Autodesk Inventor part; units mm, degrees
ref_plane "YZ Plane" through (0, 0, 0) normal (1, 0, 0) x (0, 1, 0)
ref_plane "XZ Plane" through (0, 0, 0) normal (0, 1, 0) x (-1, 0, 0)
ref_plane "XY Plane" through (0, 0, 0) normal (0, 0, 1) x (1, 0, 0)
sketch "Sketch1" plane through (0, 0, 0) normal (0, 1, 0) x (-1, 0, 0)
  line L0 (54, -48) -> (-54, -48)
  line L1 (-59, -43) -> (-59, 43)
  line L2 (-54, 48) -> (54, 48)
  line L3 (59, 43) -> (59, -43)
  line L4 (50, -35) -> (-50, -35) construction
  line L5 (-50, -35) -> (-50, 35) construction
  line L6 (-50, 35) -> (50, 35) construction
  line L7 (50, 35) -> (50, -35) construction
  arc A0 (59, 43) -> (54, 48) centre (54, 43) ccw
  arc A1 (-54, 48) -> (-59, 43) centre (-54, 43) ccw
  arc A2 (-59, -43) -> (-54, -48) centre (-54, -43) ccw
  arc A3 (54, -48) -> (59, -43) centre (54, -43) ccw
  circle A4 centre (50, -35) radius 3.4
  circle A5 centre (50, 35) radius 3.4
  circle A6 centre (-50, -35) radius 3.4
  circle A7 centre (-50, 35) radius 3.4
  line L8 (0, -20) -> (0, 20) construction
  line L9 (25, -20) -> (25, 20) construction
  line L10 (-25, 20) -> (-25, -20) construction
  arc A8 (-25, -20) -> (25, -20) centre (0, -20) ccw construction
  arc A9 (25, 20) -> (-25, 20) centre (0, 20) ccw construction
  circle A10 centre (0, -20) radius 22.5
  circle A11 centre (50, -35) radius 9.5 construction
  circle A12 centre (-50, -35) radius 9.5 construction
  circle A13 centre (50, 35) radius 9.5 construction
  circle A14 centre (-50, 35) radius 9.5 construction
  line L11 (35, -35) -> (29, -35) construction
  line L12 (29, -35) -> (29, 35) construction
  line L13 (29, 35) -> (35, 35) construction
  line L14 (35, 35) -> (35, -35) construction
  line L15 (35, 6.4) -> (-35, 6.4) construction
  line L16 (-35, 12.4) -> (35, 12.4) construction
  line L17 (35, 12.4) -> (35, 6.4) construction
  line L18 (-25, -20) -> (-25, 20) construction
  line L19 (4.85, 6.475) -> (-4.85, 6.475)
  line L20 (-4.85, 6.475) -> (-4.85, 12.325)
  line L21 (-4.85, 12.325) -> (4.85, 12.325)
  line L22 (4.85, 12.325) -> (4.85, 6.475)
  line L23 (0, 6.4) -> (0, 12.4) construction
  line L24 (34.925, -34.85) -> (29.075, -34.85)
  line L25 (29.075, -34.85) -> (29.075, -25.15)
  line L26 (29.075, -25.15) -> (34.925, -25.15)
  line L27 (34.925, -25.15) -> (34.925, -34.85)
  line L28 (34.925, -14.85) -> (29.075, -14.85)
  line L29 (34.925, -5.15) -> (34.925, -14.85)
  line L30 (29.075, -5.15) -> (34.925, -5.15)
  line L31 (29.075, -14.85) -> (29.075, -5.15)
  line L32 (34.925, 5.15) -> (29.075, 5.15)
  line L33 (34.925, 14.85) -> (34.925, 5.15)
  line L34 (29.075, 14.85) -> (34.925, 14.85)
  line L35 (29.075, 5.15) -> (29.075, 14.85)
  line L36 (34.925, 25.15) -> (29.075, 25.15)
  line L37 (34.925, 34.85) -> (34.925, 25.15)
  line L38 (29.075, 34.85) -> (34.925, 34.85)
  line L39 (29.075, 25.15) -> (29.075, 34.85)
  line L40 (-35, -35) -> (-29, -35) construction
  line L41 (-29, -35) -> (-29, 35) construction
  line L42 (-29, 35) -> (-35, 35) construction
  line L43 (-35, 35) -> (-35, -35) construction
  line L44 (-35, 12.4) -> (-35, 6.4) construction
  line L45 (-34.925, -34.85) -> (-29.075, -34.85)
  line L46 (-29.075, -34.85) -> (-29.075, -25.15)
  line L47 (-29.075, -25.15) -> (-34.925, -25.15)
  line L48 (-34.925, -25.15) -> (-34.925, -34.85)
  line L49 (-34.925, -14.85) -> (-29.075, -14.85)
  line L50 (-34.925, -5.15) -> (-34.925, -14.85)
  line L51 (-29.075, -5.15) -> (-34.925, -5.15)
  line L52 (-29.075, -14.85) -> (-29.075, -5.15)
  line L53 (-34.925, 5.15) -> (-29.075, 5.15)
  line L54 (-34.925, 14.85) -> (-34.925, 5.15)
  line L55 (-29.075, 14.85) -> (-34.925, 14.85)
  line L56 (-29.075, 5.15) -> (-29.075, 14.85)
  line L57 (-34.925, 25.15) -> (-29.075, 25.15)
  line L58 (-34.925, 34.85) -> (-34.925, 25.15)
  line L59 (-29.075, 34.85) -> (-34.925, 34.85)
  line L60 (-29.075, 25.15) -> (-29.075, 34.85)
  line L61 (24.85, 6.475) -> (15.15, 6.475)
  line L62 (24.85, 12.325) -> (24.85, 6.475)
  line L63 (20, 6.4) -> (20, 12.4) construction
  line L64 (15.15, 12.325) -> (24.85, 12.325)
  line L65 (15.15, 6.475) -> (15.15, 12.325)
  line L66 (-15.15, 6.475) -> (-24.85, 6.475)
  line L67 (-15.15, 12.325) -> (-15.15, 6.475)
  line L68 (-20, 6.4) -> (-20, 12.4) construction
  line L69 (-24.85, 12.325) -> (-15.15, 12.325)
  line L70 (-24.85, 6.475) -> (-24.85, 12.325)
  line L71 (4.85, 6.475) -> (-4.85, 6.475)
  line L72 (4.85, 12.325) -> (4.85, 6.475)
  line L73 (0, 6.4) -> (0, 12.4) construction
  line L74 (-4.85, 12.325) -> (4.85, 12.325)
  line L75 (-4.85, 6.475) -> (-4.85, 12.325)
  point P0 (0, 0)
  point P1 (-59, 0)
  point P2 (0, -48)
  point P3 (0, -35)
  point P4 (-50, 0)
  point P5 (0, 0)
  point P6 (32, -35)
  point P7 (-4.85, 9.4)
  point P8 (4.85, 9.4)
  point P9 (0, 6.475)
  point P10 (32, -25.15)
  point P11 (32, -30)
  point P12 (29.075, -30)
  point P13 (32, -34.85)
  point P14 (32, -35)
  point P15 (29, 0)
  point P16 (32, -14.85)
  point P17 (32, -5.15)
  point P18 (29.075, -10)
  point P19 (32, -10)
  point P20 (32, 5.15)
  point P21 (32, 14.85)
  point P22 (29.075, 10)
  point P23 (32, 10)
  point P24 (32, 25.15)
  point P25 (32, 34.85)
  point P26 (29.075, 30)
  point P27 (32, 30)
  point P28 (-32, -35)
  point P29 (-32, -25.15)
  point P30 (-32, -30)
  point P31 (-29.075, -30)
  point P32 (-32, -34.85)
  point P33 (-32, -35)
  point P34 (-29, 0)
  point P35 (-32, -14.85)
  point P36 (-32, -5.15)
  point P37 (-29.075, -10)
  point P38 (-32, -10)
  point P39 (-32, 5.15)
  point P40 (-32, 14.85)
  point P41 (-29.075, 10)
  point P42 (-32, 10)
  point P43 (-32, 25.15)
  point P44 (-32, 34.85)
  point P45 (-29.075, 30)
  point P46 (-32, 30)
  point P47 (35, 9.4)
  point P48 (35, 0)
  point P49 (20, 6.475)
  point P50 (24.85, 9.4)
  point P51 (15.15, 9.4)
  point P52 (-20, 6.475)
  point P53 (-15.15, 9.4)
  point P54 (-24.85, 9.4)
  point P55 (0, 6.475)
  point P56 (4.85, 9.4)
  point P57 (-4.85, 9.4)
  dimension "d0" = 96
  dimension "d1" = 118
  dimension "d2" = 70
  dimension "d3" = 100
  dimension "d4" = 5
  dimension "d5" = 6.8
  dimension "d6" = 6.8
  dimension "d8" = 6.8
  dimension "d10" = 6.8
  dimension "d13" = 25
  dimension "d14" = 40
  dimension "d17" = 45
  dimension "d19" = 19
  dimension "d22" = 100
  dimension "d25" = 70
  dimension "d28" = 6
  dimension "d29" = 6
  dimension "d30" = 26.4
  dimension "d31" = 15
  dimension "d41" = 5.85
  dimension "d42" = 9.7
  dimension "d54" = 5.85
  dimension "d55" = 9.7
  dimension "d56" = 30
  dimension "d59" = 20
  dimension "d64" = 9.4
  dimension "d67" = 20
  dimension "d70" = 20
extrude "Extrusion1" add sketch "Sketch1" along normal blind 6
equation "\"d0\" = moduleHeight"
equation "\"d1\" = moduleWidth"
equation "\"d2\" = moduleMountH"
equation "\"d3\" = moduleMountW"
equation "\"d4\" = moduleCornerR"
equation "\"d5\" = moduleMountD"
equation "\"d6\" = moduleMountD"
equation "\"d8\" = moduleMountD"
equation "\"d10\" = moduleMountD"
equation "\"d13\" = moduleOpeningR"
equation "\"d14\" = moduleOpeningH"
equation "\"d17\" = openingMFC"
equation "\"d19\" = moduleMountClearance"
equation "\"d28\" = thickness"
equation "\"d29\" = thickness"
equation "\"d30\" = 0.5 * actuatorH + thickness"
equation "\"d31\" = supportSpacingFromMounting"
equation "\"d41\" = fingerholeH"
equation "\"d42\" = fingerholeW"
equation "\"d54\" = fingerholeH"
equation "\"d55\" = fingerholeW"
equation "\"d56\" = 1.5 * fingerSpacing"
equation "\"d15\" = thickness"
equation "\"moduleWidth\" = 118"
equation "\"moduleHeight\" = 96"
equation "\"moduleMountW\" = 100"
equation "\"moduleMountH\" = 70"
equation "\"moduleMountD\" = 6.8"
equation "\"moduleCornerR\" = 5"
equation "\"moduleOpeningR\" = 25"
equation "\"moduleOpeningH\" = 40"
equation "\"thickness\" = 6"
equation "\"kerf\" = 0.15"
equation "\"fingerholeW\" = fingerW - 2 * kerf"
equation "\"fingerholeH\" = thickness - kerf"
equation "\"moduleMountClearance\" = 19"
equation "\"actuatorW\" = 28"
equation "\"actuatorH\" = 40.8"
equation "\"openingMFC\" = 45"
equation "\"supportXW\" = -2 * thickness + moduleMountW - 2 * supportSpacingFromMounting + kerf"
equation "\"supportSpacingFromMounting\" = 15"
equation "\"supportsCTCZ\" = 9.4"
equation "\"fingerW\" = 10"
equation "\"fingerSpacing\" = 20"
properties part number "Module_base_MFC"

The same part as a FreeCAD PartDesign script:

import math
import FreeCAD as App
import Part
import Sketcher

doc = App.newDocument("Part")
params = doc.addObject("Spreadsheet::Sheet", "Params")
for row, (alias, value) in enumerate([
    ("sketch1_diameter", "45 mm"),
    ("sketch1_radius", "5 mm"),
    ("sketch1_diameter2", "6.8 mm"),
    ("sketch1_width", "9.7 mm"),
    ("sketch1_width2", "5.85 mm"),
    ("pad1_length", "6 mm"),
], start=1):
    params.set(f"A{row}", alias)
    params.set(f"B{row}", "=" + value)
    params.setAlias(f"B{row}", alias)

body = doc.addObject("PartDesign::Body", "Body")

sketch1 = body.newObject("Sketcher::SketchObject", "Sketch")
sketch1.AttachmentSupport = (doc.getObject("XZ_Plane"), [""])
sketch1.MapMode = "FlatFace"
sketch1.addGeometry(Part.LineSegment(App.Vector(54, -48, 0), App.Vector(-54, -48, 0)), False)
sketch1.addGeometry(Part.ArcOfCircle(Part.Circle(App.Vector(-54, -43, 0), App.Vector(0, 0, 1), 5), math.radians(180), math.radians(270)), False)
sketch1.addGeometry(Part.LineSegment(App.Vector(-59, -43, 0), App.Vector(-59, 43, 0)), False)
sketch1.addGeometry(Part.ArcOfCircle(Part.Circle(App.Vector(-54, 43, 0), App.Vector(0, 0, 1), 5), math.radians(90), math.radians(180)), False)
sketch1.addGeometry(Part.LineSegment(App.Vector(-54, 48, 0), App.Vector(54, 48, 0)), False)
sketch1.addGeometry(Part.ArcOfCircle(Part.Circle(App.Vector(54, 43, 0), App.Vector(0, 0, 1), 5), math.radians(0), math.radians(90)), False)
sketch1.addGeometry(Part.LineSegment(App.Vector(59, 43, 0), App.Vector(59, -43, 0)), False)
sketch1.addGeometry(Part.ArcOfCircle(Part.Circle(App.Vector(54, -43, 0), App.Vector(0, 0, 1), 5), math.radians(-90), math.radians(0)), False)
sketch1.addGeometry(Part.Circle(App.Vector(50, -35, 0), App.Vector(0, 0, 1), 3.4), False)
sketch1.addGeometry(Part.LineSegment(App.Vector(29.075, -34.85, 0), App.Vector(34.925, -34.85, 0)), False)
sketch1.addGeometry(Part.LineSegment(App.Vector(34.925, -34.85, 0), App.Vector(34.925, -25.15, 0)), False)
sketch1.addGeometry(Part.LineSegment(App.Vector(34.925, -25.15, 0), App.Vector(29.075, -25.15, 0)), False)
sketch1.addGeometry(Part.LineSegment(App.Vector(29.075, -25.15, 0), App.Vector(29.075, -34.85, 0)), False)
sketch1.addGeometry(Part.LineSegment(App.Vector(29.075, -14.85, 0), App.Vector(34.925, -14.85, 0)), False)
sketch1.addGeometry(Part.LineSegment(App.Vector(34.925, -14.85, 0), App.Vector(34.925, -5.15, 0)), False)
sketch1.addGeometry(Part.LineSegment(App.Vector(34.925, -5.15, 0), App.Vector(29.075, -5.15, 0)), False)
sketch1.addGeometry(Part.LineSegment(App.Vector(29.075, -5.15, 0), App.Vector(29.075, -14.85, 0)), False)
sketch1.addGeometry(Part.LineSegment(App.Vector(-34.925, -25.15, 0), App.Vector(-34.925, -34.85, 0)), False)
sketch1.addGeometry(Part.LineSegment(App.Vector(-34.925, -34.85, 0), App.Vector(-29.075, -34.85, 0)), False)
sketch1.addGeometry(Part.LineSegment(App.Vector(-29.075, -34.85, 0), App.Vector(-29.075, -25.15, 0)), False)
sketch1.addGeometry(Part.LineSegment(App.Vector(-29.075, -25.15, 0), App.Vector(-34.925, -25.15, 0)), False)
sketch1.addGeometry(Part.Circle(App.Vector(-50, -35, 0), App.Vector(0, 0, 1), 3.4), False)
sketch1.addGeometry(Part.Circle(App.Vector(0, -20, 0), App.Vector(0, 0, 1), 22.5), False)
sketch1.addGeometry(Part.LineSegment(App.Vector(-34.925, -5.15, 0), App.Vector(-34.925, -14.85, 0)), False)
sketch1.addGeometry(Part.LineSegment(App.Vector(-34.925, -14.85, 0), App.Vector(-29.075, -14.85, 0)), False)
sketch1.addGeometry(Part.LineSegment(App.Vector(-29.075, -14.85, 0), App.Vector(-29.075, -5.15, 0)), False)
sketch1.addGeometry(Part.LineSegment(App.Vector(-29.075, -5.15, 0), App.Vector(-34.925, -5.15, 0)), False)
sketch1.addGeometry(Part.LineSegment(App.Vector(29.075, 5.15, 0), App.Vector(34.925, 5.15, 0)), False)
sketch1.addGeometry(Part.LineSegment(App.Vector(34.925, 5.15, 0), App.Vector(34.925, 14.85, 0)), False)
sketch1.addGeometry(Part.LineSegment(App.Vector(34.925, 14.85, 0), App.Vector(29.075, 14.85, 0)), False)
sketch1.addGeometry(Part.LineSegment(App.Vector(29.075, 14.85, 0), App.Vector(29.075, 5.15, 0)), False)
sketch1.addGeometry(Part.LineSegment(App.Vector(15.15, 12.325, 0), App.Vector(15.15, 6.475, 0)), False)
sketch1.addGeometry(Part.LineSegment(App.Vector(15.15, 6.475, 0), App.Vector(24.85, 6.475, 0)), False)
sketch1.addGeometry(Part.LineSegment(App.Vector(24.85, 6.475, 0), App.Vector(24.85, 12.325, 0)), False)
sketch1.addGeometry(Part.LineSegment(App.Vector(24.85, 12.325, 0), App.Vector(15.15, 12.325, 0)), False)
sketch1.addGeometry(Part.Circle(App.Vector(50, 35, 0), App.Vector(0, 0, 1), 3.4), False)
sketch1.addGeometry(Part.LineSegment(App.Vector(29.075, 25.15, 0), App.Vector(34.925, 25.15, 0)), False)
sketch1.addGeometry(Part.LineSegment(App.Vector(34.925, 25.15, 0), App.Vector(34.925, 34.85, 0)), False)
sketch1.addGeometry(Part.LineSegment(App.Vector(34.925, 34.85, 0), App.Vector(29.075, 34.85, 0)), False)
sketch1.addGeometry(Part.LineSegment(App.Vector(29.075, 34.85, 0), App.Vector(29.075, 25.15, 0)), False)
sketch1.addGeometry(Part.LineSegment(App.Vector(-4.85, 12.325, 0), App.Vector(-4.85, 6.475, 0)), False)
sketch1.addGeometry(Part.LineSegment(App.Vector(-4.85, 6.475, 0), App.Vector(4.85, 6.475, 0)), False)
sketch1.addGeometry(Part.LineSegment(App.Vector(4.85, 6.475, 0), App.Vector(4.85, 12.325, 0)), False)
sketch1.addGeometry(Part.LineSegment(App.Vector(4.85, 12.325, 0), App.Vector(-4.85, 12.325, 0)), False)
sketch1.addGeometry(Part.LineSegment(App.Vector(-24.85, 12.325, 0), App.Vector(-24.85, 6.475, 0)), False)
sketch1.addGeometry(Part.LineSegment(App.Vector(-24.85, 6.475, 0), App.Vector(-15.15, 6.475, 0)), False)
sketch1.addGeometry(Part.LineSegment(App.Vector(-15.15, 6.475, 0), App.Vector(-15.15, 12.325, 0)), False)
sketch1.addGeometry(Part.LineSegment(App.Vector(-15.15, 12.325, 0), App.Vector(-24.85, 12.325, 0)), False)
sketch1.addGeometry(Part.LineSegment(App.Vector(-34.925, 14.85, 0), App.Vector(-34.925, 5.15, 0)), False)
sketch1.addGeometry(Part.LineSegment(App.Vector(-34.925, 5.15, 0), App.Vector(-29.075, 5.15, 0)), False)
sketch1.addGeometry(Part.LineSegment(App.Vector(-29.075, 5.15, 0), App.Vector(-29.075, 14.85, 0)), False)
sketch1.addGeometry(Part.LineSegment(App.Vector(-29.075, 14.85, 0), App.Vector(-34.925, 14.85, 0)), False)
sketch1.addGeometry(Part.LineSegment(App.Vector(-34.925, 34.85, 0), App.Vector(-34.925, 25.15, 0)), False)
sketch1.addGeometry(Part.LineSegment(App.Vector(-34.925, 25.15, 0), App.Vector(-29.075, 25.15, 0)), False)
sketch1.addGeometry(Part.LineSegment(App.Vector(-29.075, 25.15, 0), App.Vector(-29.075, 34.85, 0)), False)
sketch1.addGeometry(Part.LineSegment(App.Vector(-29.075, 34.85, 0), App.Vector(-34.925, 34.85, 0)), False)
sketch1.addGeometry(Part.Circle(App.Vector(-50, 35, 0), App.Vector(0, 0, 1), 3.4), False)
sketch1.addConstraint(Sketcher.Constraint("Tangent", 0, 2, 1, 2))
sketch1.addConstraint(Sketcher.Constraint("Tangent", 1, 1, 2, 1))
sketch1.addConstraint(Sketcher.Constraint("Tangent", 2, 2, 3, 2))
sketch1.addConstraint(Sketcher.Constraint("Tangent", 3, 1, 4, 1))
sketch1.addConstraint(Sketcher.Constraint("Tangent", 4, 2, 5, 2))
sketch1.addConstraint(Sketcher.Constraint("Tangent", 5, 1, 6, 1))
sketch1.addConstraint(Sketcher.Constraint("Tangent", 6, 2, 7, 2))
sketch1.addConstraint(Sketcher.Constraint("Tangent", 7, 1, 0, 1))
sketch1.addConstraint(Sketcher.Constraint("Coincident", 9, 2, 10, 1))
sketch1.addConstraint(Sketcher.Constraint("Coincident", 10, 2, 11, 1))
sketch1.addConstraint(Sketcher.Constraint("Coincident", 11, 2, 12, 1))
sketch1.addConstraint(Sketcher.Constraint("Coincident", 12, 2, 9, 1))
sketch1.addConstraint(Sketcher.Constraint("Coincident", 13, 2, 14, 1))
sketch1.addConstraint(Sketcher.Constraint("Coincident", 14, 2, 15, 1))
sketch1.addConstraint(Sketcher.Constraint("Coincident", 15, 2, 16, 1))
sketch1.addConstraint(Sketcher.Constraint("Coincident", 16, 2, 13, 1))
sketch1.addConstraint(Sketcher.Constraint("Coincident", 17, 2, 18, 1))
sketch1.addConstraint(Sketcher.Constraint("Coincident", 18, 2, 19, 1))
sketch1.addConstraint(Sketcher.Constraint("Coincident", 19, 2, 20, 1))
sketch1.addConstraint(Sketcher.Constraint("Coincident", 20, 2, 17, 1))
sketch1.addConstraint(Sketcher.Constraint("Coincident", 23, 2, 24, 1))
sketch1.addConstraint(Sketcher.Constraint("Coincident", 24, 2, 25, 1))
sketch1.addConstraint(Sketcher.Constraint("Coincident", 25, 2, 26, 1))
sketch1.addConstraint(Sketcher.Constraint("Coincident", 26, 2, 23, 1))
sketch1.addConstraint(Sketcher.Constraint("Coincident", 27, 2, 28, 1))
sketch1.addConstraint(Sketcher.Constraint("Coincident", 28, 2, 29, 1))
sketch1.addConstraint(Sketcher.Constraint("Coincident", 29, 2, 30, 1))
sketch1.addConstraint(Sketcher.Constraint("Coincident", 30, 2, 27, 1))
sketch1.addConstraint(Sketcher.Constraint("Coincident", 31, 2, 32, 1))
sketch1.addConstraint(Sketcher.Constraint("Coincident", 32, 2, 33, 1))
sketch1.addConstraint(Sketcher.Constraint("Coincident", 33, 2, 34, 1))
sketch1.addConstraint(Sketcher.Constraint("Coincident", 34, 2, 31, 1))
sketch1.addConstraint(Sketcher.Constraint("Coincident", 36, 2, 37, 1))
sketch1.addConstraint(Sketcher.Constraint("Coincident", 37, 2, 38, 1))
sketch1.addConstraint(Sketcher.Constraint("Coincident", 38, 2, 39, 1))
sketch1.addConstraint(Sketcher.Constraint("Coincident", 39, 2, 36, 1))
sketch1.addConstraint(Sketcher.Constraint("Coincident", 40, 2, 41, 1))
sketch1.addConstraint(Sketcher.Constraint("Coincident", 41, 2, 42, 1))
sketch1.addConstraint(Sketcher.Constraint("Coincident", 42, 2, 43, 1))
sketch1.addConstraint(Sketcher.Constraint("Coincident", 43, 2, 40, 1))
sketch1.addConstraint(Sketcher.Constraint("Coincident", 44, 2, 45, 1))
sketch1.addConstraint(Sketcher.Constraint("Coincident", 45, 2, 46, 1))
sketch1.addConstraint(Sketcher.Constraint("Coincident", 46, 2, 47, 1))
sketch1.addConstraint(Sketcher.Constraint("Coincident", 47, 2, 44, 1))
sketch1.addConstraint(Sketcher.Constraint("Coincident", 48, 2, 49, 1))
sketch1.addConstraint(Sketcher.Constraint("Coincident", 49, 2, 50, 1))
sketch1.addConstraint(Sketcher.Constraint("Coincident", 50, 2, 51, 1))
sketch1.addConstraint(Sketcher.Constraint("Coincident", 51, 2, 48, 1))
sketch1.addConstraint(Sketcher.Constraint("Coincident", 52, 2, 53, 1))
sketch1.addConstraint(Sketcher.Constraint("Coincident", 53, 2, 54, 1))
sketch1.addConstraint(Sketcher.Constraint("Coincident", 54, 2, 55, 1))
sketch1.addConstraint(Sketcher.Constraint("Coincident", 55, 2, 52, 1))
sketch1.addConstraint(Sketcher.Constraint("Horizontal", 0))
sketch1.addConstraint(Sketcher.Constraint("Vertical", 2))
sketch1.addConstraint(Sketcher.Constraint("Horizontal", 4))
sketch1.addConstraint(Sketcher.Constraint("Vertical", 6))
sketch1.addConstraint(Sketcher.Constraint("Horizontal", 9))
sketch1.addConstraint(Sketcher.Constraint("Vertical", 10))
sketch1.addConstraint(Sketcher.Constraint("Horizontal", 11))
sketch1.addConstraint(Sketcher.Constraint("Vertical", 12))
sketch1.addConstraint(Sketcher.Constraint("Horizontal", 13))
sketch1.addConstraint(Sketcher.Constraint("Vertical", 14))
sketch1.addConstraint(Sketcher.Constraint("Horizontal", 15))
sketch1.addConstraint(Sketcher.Constraint("Vertical", 16))
sketch1.addConstraint(Sketcher.Constraint("Vertical", 17))
sketch1.addConstraint(Sketcher.Constraint("Horizontal", 18))
sketch1.addConstraint(Sketcher.Constraint("Vertical", 19))
sketch1.addConstraint(Sketcher.Constraint("Horizontal", 20))
sketch1.addConstraint(Sketcher.Constraint("Vertical", 23))
sketch1.addConstraint(Sketcher.Constraint("Horizontal", 24))
sketch1.addConstraint(Sketcher.Constraint("Vertical", 25))
sketch1.addConstraint(Sketcher.Constraint("Horizontal", 26))
sketch1.addConstraint(Sketcher.Constraint("Horizontal", 27))
sketch1.addConstraint(Sketcher.Constraint("Vertical", 28))
sketch1.addConstraint(Sketcher.Constraint("Horizontal", 29))
sketch1.addConstraint(Sketcher.Constraint("Vertical", 30))
sketch1.addConstraint(Sketcher.Constraint("Vertical", 31))
sketch1.addConstraint(Sketcher.Constraint("Horizontal", 32))
sketch1.addConstraint(Sketcher.Constraint("Vertical", 33))
sketch1.addConstraint(Sketcher.Constraint("Horizontal", 34))
sketch1.addConstraint(Sketcher.Constraint("Horizontal", 36))
sketch1.addConstraint(Sketcher.Constraint("Vertical", 37))
sketch1.addConstraint(Sketcher.Constraint("Horizontal", 38))
sketch1.addConstraint(Sketcher.Constraint("Vertical", 39))
sketch1.addConstraint(Sketcher.Constraint("Vertical", 40))
sketch1.addConstraint(Sketcher.Constraint("Horizontal", 41))
sketch1.addConstraint(Sketcher.Constraint("Vertical", 42))
sketch1.addConstraint(Sketcher.Constraint("Horizontal", 43))
sketch1.addConstraint(Sketcher.Constraint("Vertical", 44))
sketch1.addConstraint(Sketcher.Constraint("Horizontal", 45))
sketch1.addConstraint(Sketcher.Constraint("Vertical", 46))
sketch1.addConstraint(Sketcher.Constraint("Horizontal", 47))
sketch1.addConstraint(Sketcher.Constraint("Vertical", 48))
sketch1.addConstraint(Sketcher.Constraint("Horizontal", 49))
sketch1.addConstraint(Sketcher.Constraint("Vertical", 50))
sketch1.addConstraint(Sketcher.Constraint("Horizontal", 51))
sketch1.addConstraint(Sketcher.Constraint("Vertical", 52))
sketch1.addConstraint(Sketcher.Constraint("Horizontal", 53))
sketch1.addConstraint(Sketcher.Constraint("Vertical", 54))
sketch1.addConstraint(Sketcher.Constraint("Horizontal", 55))
sketch1.addConstraint(Sketcher.Constraint("Equal", 1, 3))
sketch1.addConstraint(Sketcher.Constraint("Equal", 3, 5))
sketch1.addConstraint(Sketcher.Constraint("Equal", 5, 7))
sketch1.addConstraint(Sketcher.Constraint("Equal", 8, 21))
sketch1.addConstraint(Sketcher.Constraint("Equal", 21, 35))
sketch1.addConstraint(Sketcher.Constraint("Equal", 35, 56))
sketch1.addConstraint(Sketcher.Constraint("Symmetric", 1, 3, 5, 3, -1, 1))
sketch1.addConstraint(Sketcher.Constraint("Symmetric", 21, 3, 35, 3, -1, 1))
sketch1.addConstraint(Sketcher.Constraint("Symmetric", 8, 3, 56, 3, -1, 1))
sketch1.addConstraint(Sketcher.Constraint("Symmetric", 26, 2, 27, 2, -1, 1))
sketch1.addConstraint(Sketcher.Constraint("Symmetric", 24, 2, 29, 2, -1, 1))
sketch1.addConstraint(Sketcher.Constraint("Symmetric", 20, 2, 36, 2, -1, 1))
sketch1.addConstraint(Sketcher.Constraint("Symmetric", 18, 2, 38, 2, -1, 1))
sketch1.addConstraint(Sketcher.Constraint("Symmetric", 14, 2, 48, 2, -1, 1))
sketch1.addConstraint(Sketcher.Constraint("Symmetric", 16, 2, 50, 2, -1, 1))
sketch1.addConstraint(Sketcher.Constraint("Symmetric", 10, 2, 52, 2, -1, 1))
sketch1.addConstraint(Sketcher.Constraint("Symmetric", 12, 2, 54, 2, -1, 1))
sketch1.addConstraint(Sketcher.Constraint("Symmetric", 8, 3, 21, 3, -2))
sketch1.addConstraint(Sketcher.Constraint("Symmetric", 9, 2, 17, 2, -2))
sketch1.addConstraint(Sketcher.Constraint("Symmetric", 11, 2, 19, 2, -2))
sketch1.addConstraint(Sketcher.Constraint("Symmetric", 13, 2, 23, 2, -2))
sketch1.addConstraint(Sketcher.Constraint("Symmetric", 15, 2, 25, 2, -2))
sketch1.addConstraint(Sketcher.Constraint("Symmetric", 32, 2, 44, 2, -2))
sketch1.addConstraint(Sketcher.Constraint("Symmetric", 34, 2, 46, 2, -2))
sketch1.addConstraint(Sketcher.Constraint("PointOnObject", 22, 3, -2))
sketch1.addConstraint(Sketcher.Constraint("Horizontal", 32, 2, 40, 2))
sketch1.addConstraint(Sketcher.Constraint("Horizontal", 34, 2, 42, 2))
sketch1.addConstraint(Sketcher.Constraint("Vertical", 10, 2, 13, 2))
sketch1.addConstraint(Sketcher.Constraint("Vertical", 12, 2, 15, 2))
sketch1.addConstraint(Sketcher.Constraint("Equal", 34, 41))
sketch1.addConstraint(Sketcher.Constraint("Equal", 47, 10))
sketch1.addConstraint(Sketcher.Constraint("Equal", 12, 14))
sketch1.addConstraint(Sketcher.Constraint("Equal", 55, 31))
sketch1.addConstraint(Sketcher.Constraint("Diameter", 22, 45.0))
sketch1.addConstraint(Sketcher.Constraint("Radius", 1, 5.0))
sketch1.addConstraint(Sketcher.Constraint("Diameter", 8, 6.8))
sketch1.addConstraint(Sketcher.Constraint("DistanceX", 32, 1, 32, 2, 9.7))
sketch1.addConstraint(Sketcher.Constraint("DistanceY", 22, 3, -1, 1, 20.0))
sketch1.addConstraint(Sketcher.Constraint("DistanceX", 9, 1, 9, 2, 5.85))
sketch1.addConstraint(Sketcher.Constraint("DistanceX", 0, 2, 0, 1, 108.0))
sketch1.addConstraint(Sketcher.Constraint("DistanceY", 2, 1, 2, 2, 86.0))
sketch1.addConstraint(Sketcher.Constraint("DistanceX", -1, 1, 8, 3, 50.0))
sketch1.addConstraint(Sketcher.Constraint("DistanceY", 8, 3, -1, 1, 35.0))
sketch1.addConstraint(Sketcher.Constraint("DistanceY", 9, 2, -1, 1, 34.85))
sketch1.addConstraint(Sketcher.Constraint("DistanceY", 13, 2, -1, 1, 14.85))
sketch1.addConstraint(Sketcher.Constraint("DistanceX", -1, 1, 31, 2, 15.15))
sketch1.addConstraint(Sketcher.Constraint("DistanceX", 40, 2, -1, 1, 4.85))
sketch1.addConstraint(Sketcher.Constraint("DistanceX", -1, 1, 9, 2, 34.925))
sketch1.addConstraint(Sketcher.Constraint("DistanceY", -1, 1, 31, 2, 6.475))
sketch1.setExpression("Constraints[133]", "Params.sketch1_diameter")
sketch1.setExpression("Constraints[134]", "Params.sketch1_radius")
sketch1.setExpression("Constraints[135]", "Params.sketch1_diameter2")
sketch1.setExpression("Constraints[136]", "Params.sketch1_width")
sketch1.setExpression("Constraints[138]", "Params.sketch1_width2")
pad1 = body.newObject("PartDesign::Pad", "Pad")
pad1.Profile = sketch1
pad1.setExpression("Length", "Params.pad1_length")
pad1.Reversed = True

doc.recompute()
